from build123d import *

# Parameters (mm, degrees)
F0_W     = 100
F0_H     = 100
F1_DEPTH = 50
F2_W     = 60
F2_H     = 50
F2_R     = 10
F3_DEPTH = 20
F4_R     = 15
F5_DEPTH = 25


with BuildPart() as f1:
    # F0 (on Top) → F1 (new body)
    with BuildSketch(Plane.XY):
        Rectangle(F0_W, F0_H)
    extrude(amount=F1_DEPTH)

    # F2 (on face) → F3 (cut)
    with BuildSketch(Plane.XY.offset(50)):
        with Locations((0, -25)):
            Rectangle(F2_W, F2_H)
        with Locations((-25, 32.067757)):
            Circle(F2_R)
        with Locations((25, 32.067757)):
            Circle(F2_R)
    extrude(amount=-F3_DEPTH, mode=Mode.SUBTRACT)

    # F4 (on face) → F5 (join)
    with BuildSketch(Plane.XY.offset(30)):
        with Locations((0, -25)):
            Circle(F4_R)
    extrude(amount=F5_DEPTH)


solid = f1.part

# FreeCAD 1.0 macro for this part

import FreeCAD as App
import Part
import Sketcher

doc = App.newDocument("Part")
body = doc.addObject("PartDesign::Body", "Body")

# Sketch on XY plane
sketch1 = body.newObject("Sketcher::SketchObject", "Sketch")
sketch1.AttachmentSupport = (doc.getObject("XY_Plane"), [""])
sketch1.MapMode = "FlatFace"
sketch1.addGeometry(Part.LineSegment(App.Vector(-50, 50, 0), App.Vector(-50, -50, 0)), False)
sketch1.addGeometry(Part.LineSegment(App.Vector(-50, -50, 0), App.Vector(50, -50, 0)), False)
sketch1.addGeometry(Part.LineSegment(App.Vector(50, -50, 0), App.Vector(50, 50, 0)), False)
sketch1.addGeometry(Part.LineSegment(App.Vector(50, 50, 0), App.Vector(-50, 50, 0)), False)
sketch1.addConstraint(Sketcher.Constraint("Coincident", 0, 2, 1, 1))
sketch1.addConstraint(Sketcher.Constraint("Coincident", 1, 2, 2, 1))
sketch1.addConstraint(Sketcher.Constraint("Coincident", 2, 2, 3, 1))
sketch1.addConstraint(Sketcher.Constraint("Coincident", 3, 2, 0, 1))
sketch1.addConstraint(Sketcher.Constraint("Vertical", 0))
sketch1.addConstraint(Sketcher.Constraint("Horizontal", 1))
sketch1.addConstraint(Sketcher.Constraint("Vertical", 2))
sketch1.addConstraint(Sketcher.Constraint("Horizontal", 3))
sketch1.addConstraint(Sketcher.Constraint("Symmetric", 0, 2, 2, 2, -1, 1))
sketch1.addConstraint(Sketcher.Constraint("Equal", 3, 0))
sketch1.addConstraint(Sketcher.Constraint("DistanceX", 1, 1, 1, 2, 100.0))
pad1 = body.newObject("PartDesign::Pad", "Pad")
pad1.Profile = sketch1
pad1.Length = 50

# Sketch on XY plane
sketch2 = body.newObject("Sketcher::SketchObject", "Sketch001")
sketch2.AttachmentSupport = (doc.getObject("XY_Plane"), [""])
sketch2.MapMode = "FlatFace"
sketch2.AttachmentOffset = App.Placement(App.Vector(0, 0, 50), App.Rotation())
sketch2.addGeometry(Part.LineSegment(App.Vector(-30, 0, 0), App.Vector(-30, -50, 0)), False)
sketch2.addGeometry(Part.LineSegment(App.Vector(-30, -50, 0), App.Vector(30, -50, 0)), False)
sketch2.addGeometry(Part.LineSegment(App.Vector(30, -50, 0), App.Vector(30, 0, 0)), False)
sketch2.addGeometry(Part.LineSegment(App.Vector(30, 0, 0), App.Vector(-30, 0, 0)), False)
sketch2.addGeometry(Part.Circle(App.Vector(-25, 32, 0), App.Vector(0, 0, 1), 10), False)
sketch2.addGeometry(Part.Circle(App.Vector(25, 32, 0), App.Vector(0, 0, 1), 10), False)
sketch2.addConstraint(Sketcher.Constraint("Coincident", 0, 2, 1, 1))
sketch2.addConstraint(Sketcher.Constraint("Coincident", 1, 2, 2, 1))
sketch2.addConstraint(Sketcher.Constraint("Coincident", 2, 2, 3, 1))
sketch2.addConstraint(Sketcher.Constraint("Coincident", 3, 2, 0, 1))
sketch2.addConstraint(Sketcher.Constraint("Vertical", 0))
sketch2.addConstraint(Sketcher.Constraint("Horizontal", 1))
sketch2.addConstraint(Sketcher.Constraint("Vertical", 2))
sketch2.addConstraint(Sketcher.Constraint("Horizontal", 3))
sketch2.addConstraint(Sketcher.Constraint("Equal", 4, 5))
sketch2.addConstraint(Sketcher.Constraint("Symmetric", 2, 2, 3, 2, -1, 1))
sketch2.addConstraint(Sketcher.Constraint("Symmetric", 4, 3, 5, 3, -2))
sketch2.addConstraint(Sketcher.Constraint("Diameter", 4, 20.0))
sketch2.addConstraint(Sketcher.Constraint("DistanceX", 1, 1, 1, 2, 60.0))
sketch2.addConstraint(Sketcher.Constraint("DistanceY", 0, 2, 0, 1, 50.0))
sketch2.addConstraint(Sketcher.Constraint("DistanceX", 4, 3, -1, 1, 25.0))
sketch2.addConstraint(Sketcher.Constraint("DistanceY", -1, 1, 4, 3, 32.067757))
pocket1 = body.newObject("PartDesign::Pocket", "Pocket")
pocket1.Profile = sketch2
pocket1.Length = 20

# Sketch on XY plane
sketch3 = body.newObject("Sketcher::SketchObject", "Sketch002")
sketch3.AttachmentSupport = (doc.getObject("XY_Plane"), [""])
sketch3.MapMode = "FlatFace"
sketch3.AttachmentOffset = App.Placement(App.Vector(0, 0, 30), App.Rotation())
sketch3.addGeometry(Part.Circle(App.Vector(0, -25, 0), App.Vector(0, 0, 1), 15), False)
sketch3.addConstraint(Sketcher.Constraint("PointOnObject", 0, 3, -2))
sketch3.addConstraint(Sketcher.Constraint("Diameter", 0, 30.0))
sketch3.addConstraint(Sketcher.Constraint("DistanceY", 0, 3, -1, 1, 25.0))
pad2 = body.newObject("PartDesign::Pad", "Pad001")
pad2.Profile = sketch3
pad2.Length = 25

doc.recompute()
